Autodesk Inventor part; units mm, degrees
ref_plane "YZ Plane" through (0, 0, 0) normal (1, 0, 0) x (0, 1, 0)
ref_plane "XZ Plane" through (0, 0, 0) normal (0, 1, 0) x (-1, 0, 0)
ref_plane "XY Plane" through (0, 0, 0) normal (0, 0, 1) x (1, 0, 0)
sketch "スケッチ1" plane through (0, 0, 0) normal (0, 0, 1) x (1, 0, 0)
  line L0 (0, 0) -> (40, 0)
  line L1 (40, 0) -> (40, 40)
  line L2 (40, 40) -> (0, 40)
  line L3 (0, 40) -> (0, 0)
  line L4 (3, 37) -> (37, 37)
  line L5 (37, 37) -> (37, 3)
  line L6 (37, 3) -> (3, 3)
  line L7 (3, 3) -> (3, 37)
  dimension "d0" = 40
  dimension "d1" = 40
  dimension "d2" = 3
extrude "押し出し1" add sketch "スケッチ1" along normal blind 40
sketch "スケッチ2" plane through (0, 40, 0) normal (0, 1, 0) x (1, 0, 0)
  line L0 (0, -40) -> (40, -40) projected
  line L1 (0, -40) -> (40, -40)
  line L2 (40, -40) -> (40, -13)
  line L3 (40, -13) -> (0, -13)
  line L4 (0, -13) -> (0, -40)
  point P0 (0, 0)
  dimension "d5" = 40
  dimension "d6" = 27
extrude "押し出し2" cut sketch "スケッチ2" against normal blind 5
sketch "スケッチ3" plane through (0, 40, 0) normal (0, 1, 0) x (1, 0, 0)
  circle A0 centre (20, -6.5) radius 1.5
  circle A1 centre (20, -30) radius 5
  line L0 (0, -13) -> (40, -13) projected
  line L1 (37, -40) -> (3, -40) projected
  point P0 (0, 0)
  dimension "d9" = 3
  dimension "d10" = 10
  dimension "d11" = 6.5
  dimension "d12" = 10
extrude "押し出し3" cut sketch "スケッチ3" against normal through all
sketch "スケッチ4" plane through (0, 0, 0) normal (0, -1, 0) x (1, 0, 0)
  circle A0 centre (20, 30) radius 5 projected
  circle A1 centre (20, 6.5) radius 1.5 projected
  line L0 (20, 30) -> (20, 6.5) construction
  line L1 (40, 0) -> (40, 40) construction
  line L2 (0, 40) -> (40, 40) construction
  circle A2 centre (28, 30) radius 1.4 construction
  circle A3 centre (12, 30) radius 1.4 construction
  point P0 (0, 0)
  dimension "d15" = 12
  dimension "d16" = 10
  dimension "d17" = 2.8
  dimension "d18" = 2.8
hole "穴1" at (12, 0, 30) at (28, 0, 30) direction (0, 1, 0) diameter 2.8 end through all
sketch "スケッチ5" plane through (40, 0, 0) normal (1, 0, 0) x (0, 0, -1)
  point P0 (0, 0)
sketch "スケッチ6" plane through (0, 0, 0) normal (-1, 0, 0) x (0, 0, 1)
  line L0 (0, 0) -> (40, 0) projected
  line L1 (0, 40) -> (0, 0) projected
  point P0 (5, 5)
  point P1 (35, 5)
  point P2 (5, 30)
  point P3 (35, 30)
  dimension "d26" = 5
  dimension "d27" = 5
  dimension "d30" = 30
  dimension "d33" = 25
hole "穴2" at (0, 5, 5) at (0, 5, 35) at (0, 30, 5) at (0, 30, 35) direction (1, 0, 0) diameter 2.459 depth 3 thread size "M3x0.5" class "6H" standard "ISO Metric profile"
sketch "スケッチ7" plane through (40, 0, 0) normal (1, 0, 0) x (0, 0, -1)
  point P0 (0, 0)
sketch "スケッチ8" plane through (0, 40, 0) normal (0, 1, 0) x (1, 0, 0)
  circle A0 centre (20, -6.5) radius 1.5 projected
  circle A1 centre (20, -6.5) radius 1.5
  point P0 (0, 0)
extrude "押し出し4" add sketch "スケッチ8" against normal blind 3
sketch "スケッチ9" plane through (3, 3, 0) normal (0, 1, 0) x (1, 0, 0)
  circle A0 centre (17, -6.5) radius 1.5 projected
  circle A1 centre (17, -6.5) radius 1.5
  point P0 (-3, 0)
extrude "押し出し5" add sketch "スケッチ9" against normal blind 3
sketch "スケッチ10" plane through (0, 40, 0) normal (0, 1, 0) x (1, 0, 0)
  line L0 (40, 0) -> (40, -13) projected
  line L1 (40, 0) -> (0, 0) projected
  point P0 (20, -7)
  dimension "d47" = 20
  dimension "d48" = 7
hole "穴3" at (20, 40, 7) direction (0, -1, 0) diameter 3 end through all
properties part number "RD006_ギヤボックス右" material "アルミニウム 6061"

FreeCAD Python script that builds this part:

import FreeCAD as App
import Part
import Sketcher
Q = App.Units.Quantity

doc = App.newDocument("Part")
body = doc.addObject("PartDesign::Body", "Body")

# Sketch on XY plane
sketch1 = doc.addObject("Sketcher::SketchObject", "Sketch")
body.addObject(sketch1)
sketch1.AttachmentSupport = (doc.XY_Plane, [""])
sketch1.MapMode = "FlatFace"
sketch1.addGeometry([
    Part.LineSegment(App.Vector(0, 40, 0), App.Vector(0, 0, 0)),  # 0
    Part.LineSegment(App.Vector(0, 0, 0), App.Vector(40, 0, 0)),  # 1
    Part.LineSegment(App.Vector(40, 0, 0), App.Vector(40, 40, 0)),  # 2
    Part.LineSegment(App.Vector(40, 40, 0), App.Vector(0, 40, 0)),  # 3
    Part.LineSegment(App.Vector(3, 3, 0), App.Vector(3, 37, 0)),  # 4
    Part.LineSegment(App.Vector(3, 37, 0), App.Vector(37, 37, 0)),  # 5
    Part.LineSegment(App.Vector(37, 37, 0), App.Vector(37, 3, 0)),  # 6
    Part.LineSegment(App.Vector(37, 3, 0), App.Vector(3, 3, 0)),  # 7
], False)
sketch1.addConstraint([
    Sketcher.Constraint("Coincident", 0, 2, 1, 1),
    Sketcher.Constraint("Coincident", 1, 2, 2, 1),
    Sketcher.Constraint("Coincident", 2, 2, 3, 1),
    Sketcher.Constraint("Coincident", 3, 2, 0, 1),
    Sketcher.Constraint("Coincident", 4, 2, 5, 1),
    Sketcher.Constraint("Coincident", 5, 2, 6, 1),
    Sketcher.Constraint("Coincident", 6, 2, 7, 1),
    Sketcher.Constraint("Coincident", 7, 2, 4, 1),
    Sketcher.Constraint("Vertical", 0),
    Sketcher.Constraint("Horizontal", 1),
    Sketcher.Constraint("Vertical", 2),
    Sketcher.Constraint("Horizontal", 3),
    Sketcher.Constraint("Vertical", 4),
    Sketcher.Constraint("Horizontal", 5),
    Sketcher.Constraint("Vertical", 6),
    Sketcher.Constraint("Horizontal", 7),
    Sketcher.Constraint("Coincident", 0, 2, -1, 1),
    Sketcher.Constraint("Equal", 3, 0),
    Sketcher.Constraint("Equal", 7, 4),
    Sketcher.Constraint("DistanceX", 1, 1, 1, 2, Q("40 mm")),
    Sketcher.Constraint("DistanceX", -1, 1, 4, 2, Q("3 mm")),
    Sketcher.Constraint("DistanceY", -1, 1, 6, 2, Q("3 mm")),
    Sketcher.Constraint("DistanceY", 4, 2, 3, 2, Q("3 mm")),
])
pad1 = doc.addObject("PartDesign::Pad", "Pad")
body.addObject(pad1)
pad1.Profile = sketch1
pad1.Length = 40

# Sketch on XZ plane
sketch2 = doc.addObject("Sketcher::SketchObject", "Sketch001")
body.addObject(sketch2)
sketch2.AttachmentSupport = (doc.XZ_Plane, [""])
sketch2.MapMode = "FlatFace"
sketch2.AttachmentOffset = App.Placement(App.Vector(0, 0, -40), App.Rotation())
sketch2.addGeometry([
    Part.LineSegment(App.Vector(0, 13, 0), App.Vector(0, 40, 0)),
    Part.LineSegment(App.Vector(0, 40, 0), App.Vector(40, 40, 0)),
    Part.LineSegment(App.Vector(40, 40, 0), App.Vector(40, 13, 0)),
    Part.LineSegment(App.Vector(40, 13, 0), App.Vector(0, 13, 0)),
], False)
sketch2.addConstraint([
    Sketcher.Constraint("Coincident", 0, 2, 1, 1),
    Sketcher.Constraint("Coincident", 1, 2, 2, 1),
    Sketcher.Constraint("Coincident", 2, 2, 3, 1),
    Sketcher.Constraint("Coincident", 3, 2, 0, 1),
    Sketcher.Constraint("Vertical", 0),
    Sketcher.Constraint("Horizontal", 1),
    Sketcher.Constraint("Vertical", 2),
    Sketcher.Constraint("Horizontal", 3),
    Sketcher.Constraint("PointOnObject", 0, 2, -2),
    Sketcher.Constraint("DistanceX", 1, 1, 1, 2, Q("40 mm")),
    Sketcher.Constraint("DistanceY", 0, 1, 0, 2, Q("27 mm")),
    Sketcher.Constraint("DistanceY", -1, 1, 0, 2, Q("40 mm")),
])
pocket1 = doc.addObject("PartDesign::Pocket", "Pocket")
body.addObject(pocket1)
pocket1.Profile = sketch2
pocket1.Length = 5
pocket1.Reversed = True

# Sketch on XZ plane
sketch3 = doc.addObject("Sketcher::SketchObject", "Sketch002")
body.addObject(sketch3)
sketch3.AttachmentSupport = (doc.XZ_Plane, [""])
sketch3.MapMode = "FlatFace"
sketch3.AttachmentOffset = App.Placement(App.Vector(0, 0, -40), App.Rotation())
sketch3.addGeometry([
    Part.Circle(App.Vector(20, 6.5, 0), App.Vector(0, 0, 1), 1.5),
    Part.Circle(App.Vector(20, 30, 0), App.Vector(0, 0, 1), 5),
], False)
sketch3.addConstraint([
    Sketcher.Constraint("Vertical", 0, 3, 1, 3),
    Sketcher.Constraint("Diameter", 0, Q("3 mm")),
    Sketcher.Constraint("Diameter", 1, Q("10 mm")),
    Sketcher.Constraint("DistanceY", -1, 1, 0, 3, Q("6.5 mm")),
    Sketcher.Constraint("DistanceX", -1, 1, 0, 3, Q("20 mm")),
    Sketcher.Constraint("DistanceY", -1, 1, 1, 3, Q("30 mm")),
])
pocket2 = doc.addObject("PartDesign::Pocket", "Pocket001")
body.addObject(pocket2)
pocket2.Profile = sketch3
pocket2.Type = "ThroughAll"
pocket2.Reversed = True

# Sketch on XZ plane
sketch4 = doc.addObject("Sketcher::SketchObject", "Sketch003")
body.addObject(sketch4)
sketch4.AttachmentSupport = (doc.XZ_Plane, [""])
sketch4.MapMode = "FlatFace"
sketch4.addGeometry([
    Part.Circle(App.Vector(12, 30, 0), App.Vector(0, 0, 1), 1.4),
    Part.Circle(App.Vector(28, 30, 0), App.Vector(0, 0, 1), 1.4),
], False)
sketch4.addConstraint([
    Sketcher.Constraint("Equal", 0, 1),
    Sketcher.Constraint("Horizontal", 0, 3, 1, 3),
    Sketcher.Constraint("Diameter", 0, Q("2.8 mm")),
    Sketcher.Constraint("DistanceX", -1, 1, 0, 3, Q("12 mm")),
    Sketcher.Constraint("DistanceY", -1, 1, 0, 3, Q("30 mm")),
    Sketcher.Constraint("DistanceX", -1, 1, 1, 3, Q("28 mm")),
])
doc.recompute()
hole = doc.addObject("PartDesign::Hole", "Hole")
body.addObject(hole)
hole.Profile = sketch4
hole.ThreadType = "None"
hole.Diameter = 2.8
hole.DepthType = "ThroughAll"

# Sketch on YZ plane
sketch5 = doc.addObject("Sketcher::SketchObject", "Sketch004")
body.addObject(sketch5)
sketch5.AttachmentSupport = (doc.YZ_Plane, [""])
sketch5.MapMode = "FlatFace"
sketch5.addGeometry([
    Part.Circle(App.Vector(5, 5, 0), App.Vector(0, 0, 1), 1.2),
    Part.Circle(App.Vector(5, 35, 0), App.Vector(0, 0, 1), 1.2),
    Part.Circle(App.Vector(30, 5, 0), App.Vector(0, 0, 1), 1.2),
    Part.Circle(App.Vector(30, 35, 0), App.Vector(0, 0, 1), 1.2),
], False)
sketch5.addConstraint([
    Sketcher.Constraint("Equal", 0, 1),
    Sketcher.Constraint("Equal", 1, 2),
    Sketcher.Constraint("Equal", 2, 3),
    Sketcher.Constraint("Horizontal", 0, 3, 2, 3),
    Sketcher.Constraint("Horizontal", 1, 3, 3, 3),
    Sketcher.Constraint("Vertical", 0, 3, 1, 3),
    Sketcher.Constraint("Vertical", 2, 3, 3, 3),
    Sketcher.Constraint("Diameter", 0, Q("2.459 mm")),
    Sketcher.Constraint("DistanceX", -1, 1, 0, 3, Q("5 mm")),
    Sketcher.Constraint("DistanceY", -1, 1, 0, 3, Q("5 mm")),
    Sketcher.Constraint("DistanceY", -1, 1, 1, 3, Q("35 mm")),
    Sketcher.Constraint("DistanceX", -1, 1, 2, 3, Q("30 mm")),
])
doc.recompute()
hole2 = doc.addObject("PartDesign::Hole", "Hole001")
body.addObject(hole2)
hole2.Profile = sketch5
hole2.ThreadType = "None"
hole2.Diameter = 2.459
hole2.DepthType = "Dimension"
hole2.Depth = 3
hole2.DrillPoint = "Flat"
hole2.Reversed = True

# Sketch on XZ plane
sketch6 = doc.addObject("Sketcher::SketchObject", "Sketch005")
body.addObject(sketch6)
sketch6.AttachmentSupport = (doc.XZ_Plane, [""])
sketch6.MapMode = "FlatFace"
sketch6.AttachmentOffset = App.Placement(App.Vector(0, 0, -40), App.Rotation())
sketch6.addGeometry(Part.Circle(App.Vector(20, 6.5, 0), App.Vector(0, 0, 1), 1.5), False)
sketch6.addConstraint([
    Sketcher.Constraint("Diameter", 0, Q("3 mm")),
    Sketcher.Constraint("DistanceX", -1, 1, 0, 3, Q("20 mm")),
    Sketcher.Constraint("DistanceY", -1, 1, 0, 3, Q("6.5 mm")),
])
pad2 = doc.addObject("PartDesign::Pad", "Pad001")
body.addObject(pad2)
pad2.Profile = sketch6
pad2.Length = 3

# Sketch on XZ plane
sketch7 = doc.addObject("Sketcher::SketchObject", "Sketch006")
body.addObject(sketch7)
sketch7.AttachmentSupport = (doc.XZ_Plane, [""])
sketch7.MapMode = "FlatFace"
sketch7.AttachmentOffset = App.Placement(App.Vector(0, 0, -3), App.Rotation())
sketch7.addGeometry(Part.Circle(App.Vector(20, 6.5, 0), App.Vector(0, 0, 1), 1.5), False)
sketch7.addConstraint([
    Sketcher.Constraint("Diameter", 0, Q("3 mm")),
    Sketcher.Constraint("DistanceX", -1, 1, 0, 3, Q("20 mm")),
    Sketcher.Constraint("DistanceY", -1, 1, 0, 3, Q("6.5 mm")),
])
pad3 = doc.addObject("PartDesign::Pad", "Pad002")
body.addObject(pad3)
pad3.Profile = sketch7
pad3.Length = 3

# Sketch on XZ plane
sketch8 = doc.addObject("Sketcher::SketchObject", "Sketch007")
body.addObject(sketch8)
sketch8.AttachmentSupport = (doc.XZ_Plane, [""])
sketch8.MapMode = "FlatFace"
sketch8.AttachmentOffset = App.Placement(App.Vector(0, 0, -40), App.Rotation())
sketch8.addGeometry(Part.Circle(App.Vector(20, 7, 0), App.Vector(0, 0, 1), 1.5), False)
sketch8.addConstraint([
    Sketcher.Constraint("Diameter", 0, Q("3 mm")),
    Sketcher.Constraint("DistanceX", -1, 1, 0, 3, Q("20 mm")),
    Sketcher.Constraint("DistanceY", -1, 1, 0, 3, Q("7 mm")),
])
doc.recompute()
hole3 = doc.addObject("PartDesign::Hole", "Hole002")
body.addObject(hole3)
hole3.Profile = sketch8
hole3.ThreadType = "None"
hole3.Diameter = 3
hole3.DepthType = "ThroughAll"
hole3.Reversed = True

doc.recompute()
